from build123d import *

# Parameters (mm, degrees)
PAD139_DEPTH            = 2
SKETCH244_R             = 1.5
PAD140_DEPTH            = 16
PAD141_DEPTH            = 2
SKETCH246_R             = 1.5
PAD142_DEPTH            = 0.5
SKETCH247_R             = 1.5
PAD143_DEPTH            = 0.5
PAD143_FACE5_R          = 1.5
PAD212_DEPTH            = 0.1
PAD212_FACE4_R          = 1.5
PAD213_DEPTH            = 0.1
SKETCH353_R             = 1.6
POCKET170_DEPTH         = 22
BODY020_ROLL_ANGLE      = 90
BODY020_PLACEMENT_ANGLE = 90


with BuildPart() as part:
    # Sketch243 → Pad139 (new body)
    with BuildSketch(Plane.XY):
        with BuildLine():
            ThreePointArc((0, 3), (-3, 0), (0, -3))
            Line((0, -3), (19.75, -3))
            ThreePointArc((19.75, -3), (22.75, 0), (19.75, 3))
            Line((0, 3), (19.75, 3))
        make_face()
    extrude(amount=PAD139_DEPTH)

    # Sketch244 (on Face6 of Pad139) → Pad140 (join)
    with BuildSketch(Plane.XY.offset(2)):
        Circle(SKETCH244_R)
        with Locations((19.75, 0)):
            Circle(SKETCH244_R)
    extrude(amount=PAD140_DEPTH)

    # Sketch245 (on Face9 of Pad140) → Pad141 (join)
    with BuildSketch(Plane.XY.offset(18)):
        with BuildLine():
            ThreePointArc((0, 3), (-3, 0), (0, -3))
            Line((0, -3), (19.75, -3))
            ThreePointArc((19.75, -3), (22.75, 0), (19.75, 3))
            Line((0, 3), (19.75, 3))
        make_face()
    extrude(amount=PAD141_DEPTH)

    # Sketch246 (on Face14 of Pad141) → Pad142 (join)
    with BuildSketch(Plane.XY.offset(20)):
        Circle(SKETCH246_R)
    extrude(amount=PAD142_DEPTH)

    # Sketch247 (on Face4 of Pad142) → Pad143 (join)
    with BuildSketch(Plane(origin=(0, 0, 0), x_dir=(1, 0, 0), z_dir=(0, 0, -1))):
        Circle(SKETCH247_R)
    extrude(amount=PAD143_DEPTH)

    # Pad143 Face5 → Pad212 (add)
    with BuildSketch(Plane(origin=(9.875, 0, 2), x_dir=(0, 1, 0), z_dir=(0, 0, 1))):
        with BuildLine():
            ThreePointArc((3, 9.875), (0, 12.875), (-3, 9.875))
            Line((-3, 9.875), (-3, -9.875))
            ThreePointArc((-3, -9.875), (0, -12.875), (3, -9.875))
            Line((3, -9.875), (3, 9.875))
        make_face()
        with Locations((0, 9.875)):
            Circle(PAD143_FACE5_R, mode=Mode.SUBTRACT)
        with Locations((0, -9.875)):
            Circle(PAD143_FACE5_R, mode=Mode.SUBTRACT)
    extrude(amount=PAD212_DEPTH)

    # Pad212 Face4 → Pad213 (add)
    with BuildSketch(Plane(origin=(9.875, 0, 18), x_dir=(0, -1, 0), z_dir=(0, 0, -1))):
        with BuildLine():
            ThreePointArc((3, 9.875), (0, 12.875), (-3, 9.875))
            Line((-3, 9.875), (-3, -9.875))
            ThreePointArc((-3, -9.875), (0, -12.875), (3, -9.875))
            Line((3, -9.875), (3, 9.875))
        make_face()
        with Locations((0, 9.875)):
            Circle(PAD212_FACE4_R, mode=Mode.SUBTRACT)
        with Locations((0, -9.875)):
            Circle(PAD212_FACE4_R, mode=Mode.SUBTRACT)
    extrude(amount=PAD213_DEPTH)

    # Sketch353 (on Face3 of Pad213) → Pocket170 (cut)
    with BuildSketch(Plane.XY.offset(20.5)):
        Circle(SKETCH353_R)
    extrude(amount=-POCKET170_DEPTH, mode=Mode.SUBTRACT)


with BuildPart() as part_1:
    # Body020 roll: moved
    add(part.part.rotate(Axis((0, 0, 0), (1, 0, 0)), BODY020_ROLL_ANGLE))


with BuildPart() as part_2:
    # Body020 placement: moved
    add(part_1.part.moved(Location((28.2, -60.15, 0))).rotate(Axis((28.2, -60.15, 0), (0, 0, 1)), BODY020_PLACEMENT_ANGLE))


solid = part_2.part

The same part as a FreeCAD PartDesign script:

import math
import FreeCAD as App
import Part
import Sketcher
from FreeCAD import Vector
Q = App.Units.Quantity

doc = App.newDocument("Part")
body = doc.addObject("PartDesign::Body", "Body")

# Sketch on XY plane
sketch1 = body.newObject("Sketcher::SketchObject", "Sketch")
sketch1.AttachmentSupport = (doc.getObject("XY_Plane"), [""])
sketch1.MapMode = "FlatFace"
sketch1.addGeometry([
    Part.ArcOfCircle(Part.Circle(Vector(0, 0, 0), Vector(0, 0, 1), 3), math.radians(90), math.radians(270)),
    Part.LineSegment(Vector(0, -3, 0), Vector(19.75, -3, 0)),
    Part.ArcOfCircle(Part.Circle(Vector(19.75, 0, 0), Vector(0, 0, 1), 3), math.radians(-90), math.radians(90)),
    Part.LineSegment(Vector(19.75, 3, 0), Vector(0, 3, 0)),
], False)
sketch1.addConstraint([
    Sketcher.Constraint("Tangent", 0, 2, 1, 1),
    Sketcher.Constraint("Tangent", 1, 2, 2, 1),
    Sketcher.Constraint("Tangent", 2, 2, 3, 1),
    Sketcher.Constraint("Tangent", 3, 2, 0, 1),
    Sketcher.Constraint("Horizontal", 1),
    Sketcher.Constraint("Horizontal", 3),
    Sketcher.Constraint("Coincident", 0, 3, -1, 1),
    Sketcher.Constraint("Radius", 0, Q("3 mm")),
    Sketcher.Constraint("DistanceX", 1, 1, 1, 2, Q("19.75 mm")),
])
pad1 = body.newObject("PartDesign::Pad", "Pad")
pad1.Profile = sketch1
pad1.Length = 2

# Sketch on XY plane
sketch2 = body.newObject("Sketcher::SketchObject", "Sketch001")
sketch2.AttachmentSupport = (doc.getObject("XY_Plane"), [""])
sketch2.MapMode = "FlatFace"
sketch2.AttachmentOffset = App.Placement(Vector(0, 0, 2), App.Rotation())
sketch2.addGeometry([
    Part.Circle(Vector(0, 0, 0), Vector(0, 0, 1), 1.5),
    Part.Circle(Vector(19.75, 0, 0), Vector(0, 0, 1), 1.5),
], False)
sketch2.addConstraint([
    Sketcher.Constraint("Coincident", 0, 3, -1, 1),
    Sketcher.Constraint("Equal", 0, 1),
    Sketcher.Constraint("PointOnObject", 1, 3, -1),
    Sketcher.Constraint("Diameter", 0, Q("3 mm")),
    Sketcher.Constraint("DistanceX", -1, 1, 1, 3, Q("19.75 mm")),
])
pad2 = body.newObject("PartDesign::Pad", "Pad001")
pad2.Profile = sketch2
pad2.Length = 16

# Sketch on XY plane
sketch3 = body.newObject("Sketcher::SketchObject", "Sketch002")
sketch3.AttachmentSupport = (doc.getObject("XY_Plane"), [""])
sketch3.MapMode = "FlatFace"
sketch3.AttachmentOffset = App.Placement(Vector(0, 0, 18), App.Rotation())
sketch3.addGeometry([
    Part.ArcOfCircle(Part.Circle(Vector(0, 0, 0), Vector(0, 0, 1), 3), math.radians(90), math.radians(270)),
    Part.LineSegment(Vector(0, -3, 0), Vector(19.75, -3, 0)),
    Part.ArcOfCircle(Part.Circle(Vector(19.75, 0, 0), Vector(0, 0, 1), 3), math.radians(-90), math.radians(90)),
    Part.LineSegment(Vector(19.75, 3, 0), Vector(0, 3, 0)),
], False)
sketch3.addConstraint([
    Sketcher.Constraint("Tangent", 0, 2, 1, 1),
    Sketcher.Constraint("Tangent", 1, 2, 2, 1),
    Sketcher.Constraint("Tangent", 2, 2, 3, 1),
    Sketcher.Constraint("Tangent", 3, 2, 0, 1),
    Sketcher.Constraint("Horizontal", 1),
    Sketcher.Constraint("Horizontal", 3),
    Sketcher.Constraint("Coincident", 0, 3, -1, 1),
    Sketcher.Constraint("Radius", 0, Q("3 mm")),
    Sketcher.Constraint("DistanceX", 1, 1, 1, 2, Q("19.75 mm")),
])
pad3 = body.newObject("PartDesign::Pad", "Pad002")
pad3.Profile = sketch3
pad3.Length = 2

# Sketch on XY plane
sketch4 = body.newObject("Sketcher::SketchObject", "Sketch003")
sketch4.AttachmentSupport = (doc.getObject("XY_Plane"), [""])
sketch4.MapMode = "FlatFace"
sketch4.AttachmentOffset = App.Placement(Vector(0, 0, 20), App.Rotation())
sketch4.addGeometry(Part.Circle(Vector(0, 0, 0), Vector(0, 0, 1), 1.5), False)
sketch4.addConstraint([
    Sketcher.Constraint("Coincident", 0, 3, -1, 1),
    Sketcher.Constraint("Diameter", 0, Q("3 mm")),
])
pad4 = body.newObject("PartDesign::Pad", "Pad003")
pad4.Profile = sketch4
pad4.Length = 0.5

# Sketch on XY plane
sketch5 = body.newObject("Sketcher::SketchObject", "Sketch004")
sketch5.AttachmentSupport = (doc.getObject("XY_Plane"), [""])
sketch5.MapMode = "FlatFace"
sketch5.addGeometry(Part.Circle(Vector(0, 0, 0), Vector(0, 0, 1), 1.5), False)
sketch5.addConstraint([
    Sketcher.Constraint("Coincident", 0, 3, -1, 1),
    Sketcher.Constraint("Diameter", 0, Q("3 mm")),
])
pad5 = body.newObject("PartDesign::Pad", "Pad004")
pad5.Profile = sketch5
pad5.Length = 0.5
pad5.Reversed = True

# Sketch on XY plane
sketch6 = body.newObject("Sketcher::SketchObject", "Sketch005")
sketch6.AttachmentSupport = (doc.getObject("XY_Plane"), [""])
sketch6.MapMode = "FlatFace"
sketch6.AttachmentOffset = App.Placement(Vector(0, 0, 2), App.Rotation())
sketch6.addGeometry([
    Part.ArcOfCircle(Part.Circle(Vector(0, 0, 0), Vector(0, 0, 1), 3), math.radians(90), math.radians(270)),  # 0
    Part.LineSegment(Vector(0, -3, 0), Vector(19.75, -3, 0)),  # 1
    Part.ArcOfCircle(Part.Circle(Vector(19.75, 0, 0), Vector(0, 0, 1), 3), math.radians(-90), math.radians(90)),  # 2
    Part.LineSegment(Vector(19.75, 3, 0), Vector(0, 3, 0)),  # 3
    Part.Circle(Vector(19.75, 0, 0), Vector(0, 0, 1), 1.5),  # 4
    Part.Circle(Vector(0, 0, 0), Vector(0, 0, 1), 1.5),  # 5
], False)
sketch6.addConstraint([
    Sketcher.Constraint("Tangent", 0, 2, 1, 1),
    Sketcher.Constraint("Tangent", 1, 2, 2, 1),
    Sketcher.Constraint("Tangent", 2, 2, 3, 1),
    Sketcher.Constraint("Tangent", 3, 2, 0, 1),
    Sketcher.Constraint("Horizontal", 1),
    Sketcher.Constraint("Horizontal", 3),
    Sketcher.Constraint("Coincident", 0, 3, -1, 1),
    Sketcher.Constraint("Coincident", 5, 3, -1, 1),
    Sketcher.Constraint("Coincident", 4, 3, 2, 3),
    Sketcher.Constraint("Equal", 4, 5),
    Sketcher.Constraint("Diameter", 4, Q("3 mm")),
    Sketcher.Constraint("Radius", 0, Q("3 mm")),
    Sketcher.Constraint("DistanceX", 1, 1, 1, 2, Q("19.75 mm")),
])
pad6 = body.newObject("PartDesign::Pad", "Pad005")
pad6.Profile = sketch6
pad6.Length = 0.1

# Sketch on XY plane
sketch7 = body.newObject("Sketcher::SketchObject", "Sketch006")
sketch7.AttachmentSupport = (doc.getObject("XY_Plane"), [""])
sketch7.MapMode = "FlatFace"
sketch7.AttachmentOffset = App.Placement(Vector(0, 0, 18), App.Rotation())
sketch7.addGeometry([
    Part.ArcOfCircle(Part.Circle(Vector(0, 0, 0), Vector(0, 0, 1), 3), math.radians(90), math.radians(270)),  # 0
    Part.LineSegment(Vector(0, 3, 0), Vector(19.75, 3, 0)),  # 1
    Part.ArcOfCircle(Part.Circle(Vector(19.75, 0, 0), Vector(0, 0, 1), 3), math.radians(-90), math.radians(90)),  # 2
    Part.LineSegment(Vector(19.75, -3, 0), Vector(0, -3, 0)),  # 3
    Part.Circle(Vector(19.75, 0, 0), Vector(0, 0, 1), 1.5),  # 4
    Part.Circle(Vector(0, 0, 0), Vector(0, 0, 1), 1.5),  # 5
], False)
sketch7.addConstraint([
    Sketcher.Constraint("Tangent", 0, 1, 1, 1),
    Sketcher.Constraint("Tangent", 1, 2, 2, 2),
    Sketcher.Constraint("Tangent", 2, 1, 3, 1),
    Sketcher.Constraint("Tangent", 3, 2, 0, 2),
    Sketcher.Constraint("Horizontal", 1),
    Sketcher.Constraint("Horizontal", 3),
    Sketcher.Constraint("Coincident", 0, 3, -1, 1),
    Sketcher.Constraint("Coincident", 5, 3, -1, 1),
    Sketcher.Constraint("Coincident", 4, 3, 2, 3),
    Sketcher.Constraint("Equal", 4, 5),
    Sketcher.Constraint("Diameter", 4, Q("3 mm")),
    Sketcher.Constraint("Radius", 0, Q("3 mm")),
    Sketcher.Constraint("DistanceX", 1, 1, 1, 2, Q("19.75 mm")),
])
pad7 = body.newObject("PartDesign::Pad", "Pad006")
pad7.Profile = sketch7
pad7.Length = 0.1
pad7.Reversed = True

# Sketch on XY plane
sketch8 = body.newObject("Sketcher::SketchObject", "Sketch007")
sketch8.AttachmentSupport = (doc.getObject("XY_Plane"), [""])
sketch8.MapMode = "FlatFace"
sketch8.AttachmentOffset = App.Placement(Vector(0, 0, 20.5), App.Rotation())
sketch8.addGeometry(Part.Circle(Vector(0, 0, 0), Vector(0, 0, 1), 1.6), False)
sketch8.addConstraint([
    Sketcher.Constraint("Coincident", 0, 3, -1, 1),
    Sketcher.Constraint("Diameter", 0, Q("3.2 mm")),
])
pocket1 = body.newObject("PartDesign::Pocket", "Pocket")
pocket1.Profile = sketch8
pocket1.Length = 22
body2 = doc.addObject("PartDesign::Body", "Body001")
doc.recompute()

body.Placement = App.Placement(Vector(0, 0, 0), App.Rotation(Vector(1, 0, 0), 90))
boolean = body2.newObject("PartDesign::Boolean", "Boolean")
boolean.Type = "Fuse"
boolean.addObjects([body])
body3 = doc.addObject("PartDesign::Body", "Body002")
doc.recompute()

body2.Placement = App.Placement(Vector(28.2, -60.15, 0), App.Rotation(Vector(0, 0, 1), 90))
boolean2 = body3.newObject("PartDesign::Boolean", "Boolean001")
boolean2.Type = "Fuse"
boolean2.addObjects([body2])

doc.recompute()
